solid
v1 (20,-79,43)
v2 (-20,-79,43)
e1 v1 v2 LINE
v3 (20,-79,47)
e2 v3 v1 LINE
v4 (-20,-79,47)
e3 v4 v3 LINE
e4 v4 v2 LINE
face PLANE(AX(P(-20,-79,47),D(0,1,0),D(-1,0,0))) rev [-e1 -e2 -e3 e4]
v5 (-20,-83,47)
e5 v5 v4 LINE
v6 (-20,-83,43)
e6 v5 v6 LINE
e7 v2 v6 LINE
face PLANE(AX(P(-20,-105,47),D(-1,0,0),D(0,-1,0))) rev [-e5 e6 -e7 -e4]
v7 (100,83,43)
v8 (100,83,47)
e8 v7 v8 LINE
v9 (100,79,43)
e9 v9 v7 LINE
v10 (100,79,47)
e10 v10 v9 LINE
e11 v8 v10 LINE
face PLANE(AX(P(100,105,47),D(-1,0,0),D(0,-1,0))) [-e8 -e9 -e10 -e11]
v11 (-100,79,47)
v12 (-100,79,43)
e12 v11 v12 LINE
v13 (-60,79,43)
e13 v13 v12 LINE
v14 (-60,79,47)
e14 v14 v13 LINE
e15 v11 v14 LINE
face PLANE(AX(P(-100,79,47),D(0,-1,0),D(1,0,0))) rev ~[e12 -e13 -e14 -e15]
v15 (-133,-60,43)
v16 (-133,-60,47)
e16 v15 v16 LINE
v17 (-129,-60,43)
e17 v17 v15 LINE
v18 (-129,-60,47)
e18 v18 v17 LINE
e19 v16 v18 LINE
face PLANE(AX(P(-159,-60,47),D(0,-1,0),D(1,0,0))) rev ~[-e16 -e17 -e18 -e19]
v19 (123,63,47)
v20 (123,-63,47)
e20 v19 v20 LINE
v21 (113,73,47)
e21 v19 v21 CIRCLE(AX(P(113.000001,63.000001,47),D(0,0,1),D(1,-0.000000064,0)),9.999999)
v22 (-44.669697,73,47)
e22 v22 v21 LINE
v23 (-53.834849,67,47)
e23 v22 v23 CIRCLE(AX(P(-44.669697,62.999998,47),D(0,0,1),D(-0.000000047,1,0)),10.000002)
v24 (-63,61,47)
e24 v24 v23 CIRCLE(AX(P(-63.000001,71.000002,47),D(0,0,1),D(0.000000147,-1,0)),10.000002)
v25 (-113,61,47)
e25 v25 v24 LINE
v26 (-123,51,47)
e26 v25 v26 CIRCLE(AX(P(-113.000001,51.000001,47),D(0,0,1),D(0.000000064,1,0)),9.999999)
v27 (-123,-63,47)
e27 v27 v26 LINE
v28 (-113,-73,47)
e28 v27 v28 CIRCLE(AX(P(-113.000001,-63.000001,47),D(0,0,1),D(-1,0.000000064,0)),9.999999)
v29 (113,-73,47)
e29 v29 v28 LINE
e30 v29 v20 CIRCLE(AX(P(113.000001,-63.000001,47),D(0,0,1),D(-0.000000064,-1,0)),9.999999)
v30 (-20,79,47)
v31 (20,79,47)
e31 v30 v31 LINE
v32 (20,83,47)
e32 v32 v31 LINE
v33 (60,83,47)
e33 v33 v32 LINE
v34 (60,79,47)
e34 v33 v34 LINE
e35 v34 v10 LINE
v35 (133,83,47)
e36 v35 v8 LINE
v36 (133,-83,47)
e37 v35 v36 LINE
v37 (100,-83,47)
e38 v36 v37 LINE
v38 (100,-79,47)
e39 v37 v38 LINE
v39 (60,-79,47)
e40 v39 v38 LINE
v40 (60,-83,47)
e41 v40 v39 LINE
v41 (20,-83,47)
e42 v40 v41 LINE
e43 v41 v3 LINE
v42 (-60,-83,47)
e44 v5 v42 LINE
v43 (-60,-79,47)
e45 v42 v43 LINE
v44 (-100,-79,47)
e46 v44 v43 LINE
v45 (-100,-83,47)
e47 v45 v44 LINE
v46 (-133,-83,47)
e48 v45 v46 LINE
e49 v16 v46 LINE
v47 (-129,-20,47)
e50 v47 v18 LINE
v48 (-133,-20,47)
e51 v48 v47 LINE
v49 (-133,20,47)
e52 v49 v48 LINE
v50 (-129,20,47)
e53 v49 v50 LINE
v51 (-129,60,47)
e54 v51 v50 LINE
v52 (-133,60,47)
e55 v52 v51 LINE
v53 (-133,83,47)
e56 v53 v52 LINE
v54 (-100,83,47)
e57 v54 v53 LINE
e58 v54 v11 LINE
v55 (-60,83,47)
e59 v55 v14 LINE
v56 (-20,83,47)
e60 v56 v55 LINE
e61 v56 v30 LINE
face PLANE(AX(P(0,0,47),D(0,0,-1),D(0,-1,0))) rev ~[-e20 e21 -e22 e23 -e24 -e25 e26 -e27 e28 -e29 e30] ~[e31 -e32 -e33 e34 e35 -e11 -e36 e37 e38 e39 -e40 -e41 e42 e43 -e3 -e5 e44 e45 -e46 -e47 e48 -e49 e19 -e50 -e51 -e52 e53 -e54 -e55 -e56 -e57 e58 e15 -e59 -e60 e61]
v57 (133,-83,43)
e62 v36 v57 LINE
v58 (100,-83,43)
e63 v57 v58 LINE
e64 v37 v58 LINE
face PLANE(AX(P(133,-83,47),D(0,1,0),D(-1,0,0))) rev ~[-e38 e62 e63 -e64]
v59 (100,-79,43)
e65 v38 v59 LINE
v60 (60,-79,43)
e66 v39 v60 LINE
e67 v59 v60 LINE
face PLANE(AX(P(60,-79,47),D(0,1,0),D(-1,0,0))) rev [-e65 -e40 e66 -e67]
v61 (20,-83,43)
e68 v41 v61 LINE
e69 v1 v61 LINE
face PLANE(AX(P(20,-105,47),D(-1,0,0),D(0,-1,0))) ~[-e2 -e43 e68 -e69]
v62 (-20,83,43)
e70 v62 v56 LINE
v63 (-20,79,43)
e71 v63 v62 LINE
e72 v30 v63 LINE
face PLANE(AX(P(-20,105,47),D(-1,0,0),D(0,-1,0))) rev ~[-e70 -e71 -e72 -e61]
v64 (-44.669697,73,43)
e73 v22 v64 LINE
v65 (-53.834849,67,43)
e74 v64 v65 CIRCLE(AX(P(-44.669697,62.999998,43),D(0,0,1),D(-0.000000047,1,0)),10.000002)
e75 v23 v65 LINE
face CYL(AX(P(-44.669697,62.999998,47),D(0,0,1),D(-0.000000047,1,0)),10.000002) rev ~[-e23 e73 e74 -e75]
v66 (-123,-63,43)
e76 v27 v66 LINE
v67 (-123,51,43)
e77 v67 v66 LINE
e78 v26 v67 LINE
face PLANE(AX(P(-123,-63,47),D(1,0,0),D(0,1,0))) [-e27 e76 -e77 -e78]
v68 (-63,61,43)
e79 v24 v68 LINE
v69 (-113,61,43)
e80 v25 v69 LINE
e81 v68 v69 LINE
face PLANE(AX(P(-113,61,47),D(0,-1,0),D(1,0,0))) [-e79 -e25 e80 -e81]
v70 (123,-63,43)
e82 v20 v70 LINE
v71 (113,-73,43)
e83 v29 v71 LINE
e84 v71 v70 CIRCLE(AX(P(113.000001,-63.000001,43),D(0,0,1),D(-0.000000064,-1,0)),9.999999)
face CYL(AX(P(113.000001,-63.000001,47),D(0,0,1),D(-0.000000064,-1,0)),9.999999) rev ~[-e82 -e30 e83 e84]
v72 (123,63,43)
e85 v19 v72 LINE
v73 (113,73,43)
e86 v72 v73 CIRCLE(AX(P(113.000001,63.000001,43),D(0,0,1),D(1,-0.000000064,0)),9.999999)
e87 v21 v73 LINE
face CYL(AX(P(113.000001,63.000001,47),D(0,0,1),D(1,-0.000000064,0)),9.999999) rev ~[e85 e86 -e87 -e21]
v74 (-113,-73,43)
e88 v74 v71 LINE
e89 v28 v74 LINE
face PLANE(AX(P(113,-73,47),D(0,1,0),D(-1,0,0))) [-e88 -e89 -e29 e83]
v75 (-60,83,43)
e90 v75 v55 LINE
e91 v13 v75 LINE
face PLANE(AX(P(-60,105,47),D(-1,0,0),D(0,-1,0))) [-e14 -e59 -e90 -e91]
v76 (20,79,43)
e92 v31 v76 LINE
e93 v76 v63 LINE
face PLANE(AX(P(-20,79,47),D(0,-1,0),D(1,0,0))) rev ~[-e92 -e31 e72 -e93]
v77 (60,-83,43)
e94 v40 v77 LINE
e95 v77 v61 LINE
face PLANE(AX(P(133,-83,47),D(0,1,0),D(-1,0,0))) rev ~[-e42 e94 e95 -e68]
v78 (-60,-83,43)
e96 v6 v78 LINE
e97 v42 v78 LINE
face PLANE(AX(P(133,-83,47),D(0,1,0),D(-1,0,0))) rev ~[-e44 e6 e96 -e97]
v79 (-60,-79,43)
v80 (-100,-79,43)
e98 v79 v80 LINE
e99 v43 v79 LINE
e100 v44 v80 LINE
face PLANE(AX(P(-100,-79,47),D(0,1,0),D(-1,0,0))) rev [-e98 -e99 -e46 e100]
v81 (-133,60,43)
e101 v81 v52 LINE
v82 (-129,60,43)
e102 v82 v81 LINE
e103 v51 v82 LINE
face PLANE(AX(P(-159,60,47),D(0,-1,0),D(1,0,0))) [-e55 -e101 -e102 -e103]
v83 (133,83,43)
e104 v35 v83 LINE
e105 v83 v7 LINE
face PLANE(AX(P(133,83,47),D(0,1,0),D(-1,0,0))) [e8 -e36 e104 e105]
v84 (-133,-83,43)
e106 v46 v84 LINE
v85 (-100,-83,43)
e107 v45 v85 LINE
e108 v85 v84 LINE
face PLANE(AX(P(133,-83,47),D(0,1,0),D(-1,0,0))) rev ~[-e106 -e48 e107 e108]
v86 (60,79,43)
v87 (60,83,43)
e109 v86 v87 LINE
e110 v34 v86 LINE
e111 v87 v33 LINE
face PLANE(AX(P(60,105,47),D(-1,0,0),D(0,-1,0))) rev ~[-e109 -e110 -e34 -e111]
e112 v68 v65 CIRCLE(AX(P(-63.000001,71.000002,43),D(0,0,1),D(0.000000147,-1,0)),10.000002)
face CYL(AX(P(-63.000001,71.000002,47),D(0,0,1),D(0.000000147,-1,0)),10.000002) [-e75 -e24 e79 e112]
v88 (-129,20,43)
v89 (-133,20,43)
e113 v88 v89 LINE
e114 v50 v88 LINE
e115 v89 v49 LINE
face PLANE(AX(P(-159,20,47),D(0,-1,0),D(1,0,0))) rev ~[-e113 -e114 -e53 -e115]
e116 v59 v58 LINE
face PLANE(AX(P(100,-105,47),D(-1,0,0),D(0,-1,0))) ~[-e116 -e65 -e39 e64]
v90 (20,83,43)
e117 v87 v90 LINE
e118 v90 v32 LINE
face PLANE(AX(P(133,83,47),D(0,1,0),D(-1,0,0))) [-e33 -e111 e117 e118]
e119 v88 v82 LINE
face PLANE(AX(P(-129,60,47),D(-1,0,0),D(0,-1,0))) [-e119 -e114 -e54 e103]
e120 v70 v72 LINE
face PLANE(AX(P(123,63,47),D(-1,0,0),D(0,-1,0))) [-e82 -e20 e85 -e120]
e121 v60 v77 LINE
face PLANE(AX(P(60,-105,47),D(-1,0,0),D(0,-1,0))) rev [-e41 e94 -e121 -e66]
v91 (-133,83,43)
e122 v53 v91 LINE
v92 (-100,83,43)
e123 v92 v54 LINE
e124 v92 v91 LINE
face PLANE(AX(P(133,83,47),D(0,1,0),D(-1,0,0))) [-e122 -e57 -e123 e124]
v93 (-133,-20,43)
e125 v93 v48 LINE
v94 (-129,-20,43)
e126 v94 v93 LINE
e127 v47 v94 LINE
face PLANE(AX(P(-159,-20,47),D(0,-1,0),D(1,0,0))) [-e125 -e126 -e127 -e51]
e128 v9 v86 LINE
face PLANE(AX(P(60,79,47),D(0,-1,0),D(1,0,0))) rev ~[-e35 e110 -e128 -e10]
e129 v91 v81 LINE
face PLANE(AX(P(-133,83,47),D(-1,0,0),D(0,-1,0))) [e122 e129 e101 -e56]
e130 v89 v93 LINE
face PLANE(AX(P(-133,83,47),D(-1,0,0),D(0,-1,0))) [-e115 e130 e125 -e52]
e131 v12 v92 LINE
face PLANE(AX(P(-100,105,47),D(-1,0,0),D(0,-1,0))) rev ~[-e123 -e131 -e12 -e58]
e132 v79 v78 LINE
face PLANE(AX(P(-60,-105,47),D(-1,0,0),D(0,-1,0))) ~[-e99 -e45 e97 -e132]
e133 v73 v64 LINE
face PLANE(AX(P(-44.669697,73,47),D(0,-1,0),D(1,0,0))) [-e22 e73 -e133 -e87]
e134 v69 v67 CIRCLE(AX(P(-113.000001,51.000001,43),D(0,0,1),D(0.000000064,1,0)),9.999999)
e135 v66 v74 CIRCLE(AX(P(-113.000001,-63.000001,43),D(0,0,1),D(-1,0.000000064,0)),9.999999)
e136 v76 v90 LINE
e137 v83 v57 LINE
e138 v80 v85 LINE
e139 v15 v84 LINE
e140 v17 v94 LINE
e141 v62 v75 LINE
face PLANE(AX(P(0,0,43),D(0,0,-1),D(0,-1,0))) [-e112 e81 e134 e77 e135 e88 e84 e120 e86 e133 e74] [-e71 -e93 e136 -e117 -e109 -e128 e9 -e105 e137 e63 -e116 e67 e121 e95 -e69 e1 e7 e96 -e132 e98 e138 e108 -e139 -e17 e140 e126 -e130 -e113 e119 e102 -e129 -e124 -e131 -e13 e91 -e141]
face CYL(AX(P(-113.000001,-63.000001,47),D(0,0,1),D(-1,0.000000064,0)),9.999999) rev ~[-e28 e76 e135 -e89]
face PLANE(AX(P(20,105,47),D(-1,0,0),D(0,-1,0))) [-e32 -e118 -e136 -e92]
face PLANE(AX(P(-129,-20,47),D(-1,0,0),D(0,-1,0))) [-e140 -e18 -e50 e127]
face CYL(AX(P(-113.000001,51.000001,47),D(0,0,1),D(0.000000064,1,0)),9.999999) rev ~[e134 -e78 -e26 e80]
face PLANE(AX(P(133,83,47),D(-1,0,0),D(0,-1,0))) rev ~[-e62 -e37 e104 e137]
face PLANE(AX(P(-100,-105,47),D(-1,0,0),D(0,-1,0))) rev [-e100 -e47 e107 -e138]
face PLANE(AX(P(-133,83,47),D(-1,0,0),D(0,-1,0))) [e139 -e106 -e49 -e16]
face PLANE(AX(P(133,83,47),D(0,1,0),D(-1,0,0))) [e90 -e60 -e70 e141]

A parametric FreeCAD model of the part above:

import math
import FreeCAD as App
import Part
import Sketcher

doc = App.newDocument("Part")
body = doc.addObject("PartDesign::Body", "Body")

# Sketch on XY plane
sketch1 = body.newObject("Sketcher::SketchObject", "Sketch")
sketch1.AttachmentSupport = (doc.getObject("XY_Plane"), [""])
sketch1.MapMode = "FlatFace"
sketch1.AttachmentOffset = App.Placement(App.Vector(0, 0, 47), App.Rotation())
sketch1.addGeometry(Part.LineSegment(App.Vector(-133, 83, 0), App.Vector(133, 83, 0)), False)
sketch1.addGeometry(Part.LineSegment(App.Vector(133, 83, 0), App.Vector(133, -83, 0)), False)
sketch1.addGeometry(Part.LineSegment(App.Vector(133, -83, 0), App.Vector(-133, -83, 0)), False)
sketch1.addGeometry(Part.LineSegment(App.Vector(-133, -83, 0), App.Vector(-133, 83, 0)), False)
sketch1.addConstraint(Sketcher.Constraint("Coincident", 0, 2, 1, 1))
sketch1.addConstraint(Sketcher.Constraint("Coincident", 1, 2, 2, 1))
sketch1.addConstraint(Sketcher.Constraint("Coincident", 2, 2, 3, 1))
sketch1.addConstraint(Sketcher.Constraint("Coincident", 3, 2, 0, 1))
sketch1.addConstraint(Sketcher.Constraint("Horizontal", 0))
sketch1.addConstraint(Sketcher.Constraint("Vertical", 1))
sketch1.addConstraint(Sketcher.Constraint("Horizontal", 2))
sketch1.addConstraint(Sketcher.Constraint("Vertical", 3))
sketch1.addConstraint(Sketcher.Constraint("Symmetric", 0, 2, 2, 2, -1, 1))
sketch1.addConstraint(Sketcher.Constraint("DistanceX", 0, 1, 0, 2, 266.0))
sketch1.addConstraint(Sketcher.Constraint("DistanceY", 1, 2, 1, 1, 166.0))
pad1 = body.newObject("PartDesign::Pad", "Pad")
pad1.Profile = sketch1
pad1.Length = 4
pad1.Reversed = True

# Sketch on XY plane
sketch2 = body.newObject("Sketcher::SketchObject", "Sketch001")
sketch2.AttachmentSupport = (doc.getObject("XY_Plane"), [""])
sketch2.MapMode = "FlatFace"
sketch2.AttachmentOffset = App.Placement(App.Vector(0, 0, 47), App.Rotation())
sketch2.addGeometry(Part.LineSegment(App.Vector(100, 105, 0), App.Vector(60, 105, 0)), False)
sketch2.addGeometry(Part.LineSegment(App.Vector(60, 105, 0), App.Vector(60, 79, 0)), False)
sketch2.addGeometry(Part.LineSegment(App.Vector(60, 79, 0), App.Vector(100, 79, 0)), False)
sketch2.addGeometry(Part.LineSegment(App.Vector(100, 79, 0), App.Vector(100, 105, 0)), False)
sketch2.addGeometry(Part.LineSegment(App.Vector(20, 105, 0), App.Vector(-20, 105, 0)), False)
sketch2.addGeometry(Part.LineSegment(App.Vector(-20, 105, 0), App.Vector(-20, 79, 0)), False)
sketch2.addGeometry(Part.LineSegment(App.Vector(-20, 79, 0), App.Vector(20, 79, 0)), False)
sketch2.addGeometry(Part.LineSegment(App.Vector(20, 79, 0), App.Vector(20, 105, 0)), False)
sketch2.addGeometry(Part.LineSegment(App.Vector(-60, 105, 0), App.Vector(-100, 105, 0)), False)
sketch2.addGeometry(Part.LineSegment(App.Vector(-100, 105, 0), App.Vector(-100, 79, 0)), False)
sketch2.addGeometry(Part.LineSegment(App.Vector(-100, 79, 0), App.Vector(-60, 79, 0)), False)
sketch2.addGeometry(Part.LineSegment(App.Vector(-60, 79, 0), App.Vector(-60, 105, 0)), False)
sketch2.addConstraint(Sketcher.Constraint("Coincident", 0, 2, 1, 1))
sketch2.addConstraint(Sketcher.Constraint("Coincident", 1, 2, 2, 1))
sketch2.addConstraint(Sketcher.Constraint("Coincident", 2, 2, 3, 1))
sketch2.addConstraint(Sketcher.Constraint("Coincident", 3, 2, 0, 1))
sketch2.addConstraint(Sketcher.Constraint("Coincident", 4, 2, 5, 1))
sketch2.addConstraint(Sketcher.Constraint("Coincident", 5, 2, 6, 1))
sketch2.addConstraint(Sketcher.Constraint("Coincident", 6, 2, 7, 1))
sketch2.addConstraint(Sketcher.Constraint("Coincident", 7, 2, 4, 1))
sketch2.addConstraint(Sketcher.Constraint("Coincident", 8, 2, 9, 1))
sketch2.addConstraint(Sketcher.Constraint("Coincident", 9, 2, 10, 1))
sketch2.addConstraint(Sketcher.Constraint("Coincident", 10, 2, 11, 1))
sketch2.addConstraint(Sketcher.Constraint("Coincident", 11, 2, 8, 1))
sketch2.addConstraint(Sketcher.Constraint("Horizontal", 0))
sketch2.addConstraint(Sketcher.Constraint("Vertical", 1))
sketch2.addConstraint(Sketcher.Constraint("Horizontal", 2))
sketch2.addConstraint(Sketcher.Constraint("Vertical", 3))
sketch2.addConstraint(Sketcher.Constraint("Horizontal", 4))
sketch2.addConstraint(Sketcher.Constraint("Vertical", 5))
sketch2.addConstraint(Sketcher.Constraint("Horizontal", 6))
sketch2.addConstraint(Sketcher.Constraint("Vertical", 7))
sketch2.addConstraint(Sketcher.Constraint("Horizontal", 8))
sketch2.addConstraint(Sketcher.Constraint("Vertical", 9))
sketch2.addConstraint(Sketcher.Constraint("Horizontal", 10))
sketch2.addConstraint(Sketcher.Constraint("Vertical", 11))
sketch2.addConstraint(Sketcher.Constraint("Symmetric", 3, 2, 8, 2, -2))
sketch2.addConstraint(Sketcher.Constraint("Symmetric", 1, 2, 10, 2, -2))
sketch2.addConstraint(Sketcher.Constraint("Horizontal", 3, 2, 4, 2))
sketch2.addConstraint(Sketcher.Constraint("Horizontal", 2, 2, 5, 2))
sketch2.addConstraint(Sketcher.Constraint("Equal", 2, 4))
sketch2.addConstraint(Sketcher.Constraint("DistanceX", 0, 2, 0, 1, 40.0))
sketch2.addConstraint(Sketcher.Constraint("DistanceY", 1, 2, 1, 1, 26.0))
sketch2.addConstraint(Sketcher.Constraint("DistanceX", -1, 1, 0, 2, 60.0))
sketch2.addConstraint(Sketcher.Constraint("DistanceY", -1, 1, 0, 2, 105.0))
sketch2.addConstraint(Sketcher.Constraint("DistanceX", 4, 2, -1, 1, 20.0))
pocket1 = body.newObject("PartDesign::Pocket", "Pocket")
pocket1.Profile = sketch2
pocket1.Type = "ThroughAll"
doc.recompute()

mirrored = body.newObject("PartDesign::Mirrored", "Mirrored")
mirrored.Originals = [pocket1]
mirrored.MirrorPlane = (doc.getObject("XZ_Plane"), [""])
body.Tip = mirrored

# Sketch on XY plane
sketch3 = body.newObject("Sketcher::SketchObject", "Sketch002")
sketch3.AttachmentSupport = (doc.getObject("XY_Plane"), [""])
sketch3.MapMode = "FlatFace"
sketch3.AttachmentOffset = App.Placement(App.Vector(0, 0, 47), App.Rotation())
sketch3.addGeometry(Part.LineSegment(App.Vector(-129, 60, 0), App.Vector(-159, 60, 0)), False)
sketch3.addGeometry(Part.LineSegment(App.Vector(-159, 60, 0), App.Vector(-159, 20, 0)), False)
sketch3.addGeometry(Part.LineSegment(App.Vector(-159, 20, 0), App.Vector(-129, 20, 0)), False)
sketch3.addGeometry(Part.LineSegment(App.Vector(-129, 20, 0), App.Vector(-129, 60, 0)), False)
sketch3.addGeometry(Part.LineSegment(App.Vector(-129, -20, 0), App.Vector(-159, -20, 0)), False)
sketch3.addGeometry(Part.LineSegment(App.Vector(-159, -20, 0), App.Vector(-159, -60, 0)), False)
sketch3.addGeometry(Part.LineSegment(App.Vector(-159, -60, 0), App.Vector(-129, -60, 0)), False)
sketch3.addGeometry(Part.LineSegment(App.Vector(-129, -60, 0), App.Vector(-129, -20, 0)), False)
sketch3.addConstraint(Sketcher.Constraint("Coincident", 0, 2, 1, 1))
sketch3.addConstraint(Sketcher.Constraint("Coincident", 1, 2, 2, 1))
sketch3.addConstraint(Sketcher.Constraint("Coincident", 2, 2, 3, 1))
sketch3.addConstraint(Sketcher.Constraint("Coincident", 3, 2, 0, 1))
sketch3.addConstraint(Sketcher.Constraint("Coincident", 4, 2, 5, 1))
sketch3.addConstraint(Sketcher.Constraint("Coincident", 5, 2, 6, 1))
sketch3.addConstraint(Sketcher.Constraint("Coincident", 6, 2, 7, 1))
sketch3.addConstraint(Sketcher.Constraint("Coincident", 7, 2, 4, 1))
sketch3.addConstraint(Sketcher.Constraint("Horizontal", 0))
sketch3.addConstraint(Sketcher.Constraint("Vertical", 1))
sketch3.addConstraint(Sketcher.Constraint("Horizontal", 2))
sketch3.addConstraint(Sketcher.Constraint("Vertical", 3))
sketch3.addConstraint(Sketcher.Constraint("Horizontal", 4))
sketch3.addConstraint(Sketcher.Constraint("Vertical", 5))
sketch3.addConstraint(Sketcher.Constraint("Horizontal", 6))
sketch3.addConstraint(Sketcher.Constraint("Vertical", 7))
sketch3.addConstraint(Sketcher.Constraint("Symmetric", 1, 2, 4, 2, -1))
sketch3.addConstraint(Sketcher.Constraint("Symmetric", 3, 2, 6, 2, -1))
sketch3.addConstraint(Sketcher.Constraint("DistanceX", 0, 2, 0, 1, 30.0))
sketch3.addConstraint(Sketcher.Constraint("DistanceY", 1, 2, 1, 1, 40.0))
sketch3.addConstraint(Sketcher.Constraint("DistanceX", 0, 2, -1, 1, 159.0))
sketch3.addConstraint(Sketcher.Constraint("DistanceY", -1, 1, 0, 2, 60.0))
pocket2 = body.newObject("PartDesign::Pocket", "Pocket001")
pocket2.Profile = sketch3
pocket2.Type = "ThroughAll"

# Sketch on XY plane
sketch4 = body.newObject("Sketcher::SketchObject", "Sketch003")
sketch4.AttachmentSupport = (doc.getObject("XY_Plane"), [""])
sketch4.MapMode = "FlatFace"
sketch4.AttachmentOffset = App.Placement(App.Vector(0, 0, 47), App.Rotation())
sketch4.addGeometry(Part.LineSegment(App.Vector(123, -63, 0), App.Vector(123, 63, 0)), False)
sketch4.addGeometry(Part.ArcOfCircle(Part.Circle(App.Vector(113.000001, 63.000001, 0), App.Vector(0, 0, 1), 9.999999), math.radians(-0.000004), math.radians(90.000004)), False)
sketch4.addGeometry(Part.LineSegment(App.Vector(113, 73, 0), App.Vector(-44.669697, 73, 0)), False)
sketch4.addGeometry(Part.ArcOfCircle(Part.Circle(App.Vector(-44.669697, 62.999998, 0), App.Vector(0, 0, 1), 10.000002), math.radians(90.000003), math.radians(156.421815)), False)
sketch4.addGeometry(Part.ArcOfCircle(Part.Circle(App.Vector(-63.000001, 71.000002, 0), App.Vector(0, 0, 1), 10.000002), math.radians(-89.999992), math.radians(-23.578185)), False)
sketch4.addGeometry(Part.LineSegment(App.Vector(-63, 61, 0), App.Vector(-113, 61, 0)), False)
sketch4.addGeometry(Part.ArcOfCircle(Part.Circle(App.Vector(-113.000001, 51.000001, 0), App.Vector(0, 0, 1), 9.999999), math.radians(89.999996), math.radians(180.000004)), False)
sketch4.addGeometry(Part.LineSegment(App.Vector(-123, 51, 0), App.Vector(-123, -63, 0)), False)
sketch4.addGeometry(Part.ArcOfCircle(Part.Circle(App.Vector(-113.000001, -63.000001, 0), App.Vector(0, 0, 1), 9.999999), math.radians(179.999996), math.radians(270.000004)), False)
sketch4.addGeometry(Part.LineSegment(App.Vector(-113, -73, 0), App.Vector(113, -73, 0)), False)
sketch4.addGeometry(Part.ArcOfCircle(Part.Circle(App.Vector(113.000001, -63.000001, 0), App.Vector(0, 0, 1), 9.999999), math.radians(-90.000004), math.radians(0.000004)), False)
sketch4.addConstraint(Sketcher.Constraint("Tangent", 0, 2, 1, 1))
sketch4.addConstraint(Sketcher.Constraint("Tangent", 1, 2, 2, 1))
sketch4.addConstraint(Sketcher.Constraint("Tangent", 2, 2, 3, 1))
sketch4.addConstraint(Sketcher.Constraint("Tangent", 3, 2, 4, 2))
sketch4.addConstraint(Sketcher.Constraint("Tangent", 4, 1, 5, 1))
sketch4.addConstraint(Sketcher.Constraint("Tangent", 5, 2, 6, 1))
sketch4.addConstraint(Sketcher.Constraint("Tangent", 6, 2, 7, 1))
sketch4.addConstraint(Sketcher.Constraint("Tangent", 7, 2, 8, 1))
sketch4.addConstraint(Sketcher.Constraint("Tangent", 8, 2, 9, 1))
sketch4.addConstraint(Sketcher.Constraint("Tangent", 9, 2, 10, 1))
sketch4.addConstraint(Sketcher.Constraint("Tangent", 10, 2, 0, 1))
sketch4.addConstraint(Sketcher.Constraint("Vertical", 0))
sketch4.addConstraint(Sketcher.Constraint("Horizontal", 2))
sketch4.addConstraint(Sketcher.Constraint("Horizontal", 5))
sketch4.addConstraint(Sketcher.Constraint("Vertical", 7))
sketch4.addConstraint(Sketcher.Constraint("Horizontal", 9))
sketch4.addConstraint(Sketcher.Constraint("Equal", 3, 4))
sketch4.addConstraint(Sketcher.Constraint("Equal", 1, 6))
sketch4.addConstraint(Sketcher.Constraint("Equal", 6, 8))
sketch4.addConstraint(Sketcher.Constraint("Equal", 8, 10))
sketch4.addConstraint(Sketcher.Constraint("Symmetric", 1, 3, 8, 3, -1, 1))
sketch4.addConstraint(Sketcher.Constraint("Horizontal", 3, 3, 0, 2))
sketch4.addConstraint(Sketcher.Constraint("Radius", 1, 9.999999))
sketch4.addConstraint(Sketcher.Constraint("DistanceX", 5, 2, 5, 1, 50.0))
sketch4.addConstraint(Sketcher.Constraint("DistanceX", 9, 1, 9, 2, 226.0))
sketch4.addConstraint(Sketcher.Constraint("DistanceY", 0, 1, 0, 2, 126.0))
sketch4.addConstraint(Sketcher.Constraint("DistanceY", 7, 2, 7, 1, 114.0))
pocket3 = body.newObject("PartDesign::Pocket", "Pocket002")
pocket3.Profile = sketch4
pocket3.Type = "ThroughAll"

doc.recompute()
